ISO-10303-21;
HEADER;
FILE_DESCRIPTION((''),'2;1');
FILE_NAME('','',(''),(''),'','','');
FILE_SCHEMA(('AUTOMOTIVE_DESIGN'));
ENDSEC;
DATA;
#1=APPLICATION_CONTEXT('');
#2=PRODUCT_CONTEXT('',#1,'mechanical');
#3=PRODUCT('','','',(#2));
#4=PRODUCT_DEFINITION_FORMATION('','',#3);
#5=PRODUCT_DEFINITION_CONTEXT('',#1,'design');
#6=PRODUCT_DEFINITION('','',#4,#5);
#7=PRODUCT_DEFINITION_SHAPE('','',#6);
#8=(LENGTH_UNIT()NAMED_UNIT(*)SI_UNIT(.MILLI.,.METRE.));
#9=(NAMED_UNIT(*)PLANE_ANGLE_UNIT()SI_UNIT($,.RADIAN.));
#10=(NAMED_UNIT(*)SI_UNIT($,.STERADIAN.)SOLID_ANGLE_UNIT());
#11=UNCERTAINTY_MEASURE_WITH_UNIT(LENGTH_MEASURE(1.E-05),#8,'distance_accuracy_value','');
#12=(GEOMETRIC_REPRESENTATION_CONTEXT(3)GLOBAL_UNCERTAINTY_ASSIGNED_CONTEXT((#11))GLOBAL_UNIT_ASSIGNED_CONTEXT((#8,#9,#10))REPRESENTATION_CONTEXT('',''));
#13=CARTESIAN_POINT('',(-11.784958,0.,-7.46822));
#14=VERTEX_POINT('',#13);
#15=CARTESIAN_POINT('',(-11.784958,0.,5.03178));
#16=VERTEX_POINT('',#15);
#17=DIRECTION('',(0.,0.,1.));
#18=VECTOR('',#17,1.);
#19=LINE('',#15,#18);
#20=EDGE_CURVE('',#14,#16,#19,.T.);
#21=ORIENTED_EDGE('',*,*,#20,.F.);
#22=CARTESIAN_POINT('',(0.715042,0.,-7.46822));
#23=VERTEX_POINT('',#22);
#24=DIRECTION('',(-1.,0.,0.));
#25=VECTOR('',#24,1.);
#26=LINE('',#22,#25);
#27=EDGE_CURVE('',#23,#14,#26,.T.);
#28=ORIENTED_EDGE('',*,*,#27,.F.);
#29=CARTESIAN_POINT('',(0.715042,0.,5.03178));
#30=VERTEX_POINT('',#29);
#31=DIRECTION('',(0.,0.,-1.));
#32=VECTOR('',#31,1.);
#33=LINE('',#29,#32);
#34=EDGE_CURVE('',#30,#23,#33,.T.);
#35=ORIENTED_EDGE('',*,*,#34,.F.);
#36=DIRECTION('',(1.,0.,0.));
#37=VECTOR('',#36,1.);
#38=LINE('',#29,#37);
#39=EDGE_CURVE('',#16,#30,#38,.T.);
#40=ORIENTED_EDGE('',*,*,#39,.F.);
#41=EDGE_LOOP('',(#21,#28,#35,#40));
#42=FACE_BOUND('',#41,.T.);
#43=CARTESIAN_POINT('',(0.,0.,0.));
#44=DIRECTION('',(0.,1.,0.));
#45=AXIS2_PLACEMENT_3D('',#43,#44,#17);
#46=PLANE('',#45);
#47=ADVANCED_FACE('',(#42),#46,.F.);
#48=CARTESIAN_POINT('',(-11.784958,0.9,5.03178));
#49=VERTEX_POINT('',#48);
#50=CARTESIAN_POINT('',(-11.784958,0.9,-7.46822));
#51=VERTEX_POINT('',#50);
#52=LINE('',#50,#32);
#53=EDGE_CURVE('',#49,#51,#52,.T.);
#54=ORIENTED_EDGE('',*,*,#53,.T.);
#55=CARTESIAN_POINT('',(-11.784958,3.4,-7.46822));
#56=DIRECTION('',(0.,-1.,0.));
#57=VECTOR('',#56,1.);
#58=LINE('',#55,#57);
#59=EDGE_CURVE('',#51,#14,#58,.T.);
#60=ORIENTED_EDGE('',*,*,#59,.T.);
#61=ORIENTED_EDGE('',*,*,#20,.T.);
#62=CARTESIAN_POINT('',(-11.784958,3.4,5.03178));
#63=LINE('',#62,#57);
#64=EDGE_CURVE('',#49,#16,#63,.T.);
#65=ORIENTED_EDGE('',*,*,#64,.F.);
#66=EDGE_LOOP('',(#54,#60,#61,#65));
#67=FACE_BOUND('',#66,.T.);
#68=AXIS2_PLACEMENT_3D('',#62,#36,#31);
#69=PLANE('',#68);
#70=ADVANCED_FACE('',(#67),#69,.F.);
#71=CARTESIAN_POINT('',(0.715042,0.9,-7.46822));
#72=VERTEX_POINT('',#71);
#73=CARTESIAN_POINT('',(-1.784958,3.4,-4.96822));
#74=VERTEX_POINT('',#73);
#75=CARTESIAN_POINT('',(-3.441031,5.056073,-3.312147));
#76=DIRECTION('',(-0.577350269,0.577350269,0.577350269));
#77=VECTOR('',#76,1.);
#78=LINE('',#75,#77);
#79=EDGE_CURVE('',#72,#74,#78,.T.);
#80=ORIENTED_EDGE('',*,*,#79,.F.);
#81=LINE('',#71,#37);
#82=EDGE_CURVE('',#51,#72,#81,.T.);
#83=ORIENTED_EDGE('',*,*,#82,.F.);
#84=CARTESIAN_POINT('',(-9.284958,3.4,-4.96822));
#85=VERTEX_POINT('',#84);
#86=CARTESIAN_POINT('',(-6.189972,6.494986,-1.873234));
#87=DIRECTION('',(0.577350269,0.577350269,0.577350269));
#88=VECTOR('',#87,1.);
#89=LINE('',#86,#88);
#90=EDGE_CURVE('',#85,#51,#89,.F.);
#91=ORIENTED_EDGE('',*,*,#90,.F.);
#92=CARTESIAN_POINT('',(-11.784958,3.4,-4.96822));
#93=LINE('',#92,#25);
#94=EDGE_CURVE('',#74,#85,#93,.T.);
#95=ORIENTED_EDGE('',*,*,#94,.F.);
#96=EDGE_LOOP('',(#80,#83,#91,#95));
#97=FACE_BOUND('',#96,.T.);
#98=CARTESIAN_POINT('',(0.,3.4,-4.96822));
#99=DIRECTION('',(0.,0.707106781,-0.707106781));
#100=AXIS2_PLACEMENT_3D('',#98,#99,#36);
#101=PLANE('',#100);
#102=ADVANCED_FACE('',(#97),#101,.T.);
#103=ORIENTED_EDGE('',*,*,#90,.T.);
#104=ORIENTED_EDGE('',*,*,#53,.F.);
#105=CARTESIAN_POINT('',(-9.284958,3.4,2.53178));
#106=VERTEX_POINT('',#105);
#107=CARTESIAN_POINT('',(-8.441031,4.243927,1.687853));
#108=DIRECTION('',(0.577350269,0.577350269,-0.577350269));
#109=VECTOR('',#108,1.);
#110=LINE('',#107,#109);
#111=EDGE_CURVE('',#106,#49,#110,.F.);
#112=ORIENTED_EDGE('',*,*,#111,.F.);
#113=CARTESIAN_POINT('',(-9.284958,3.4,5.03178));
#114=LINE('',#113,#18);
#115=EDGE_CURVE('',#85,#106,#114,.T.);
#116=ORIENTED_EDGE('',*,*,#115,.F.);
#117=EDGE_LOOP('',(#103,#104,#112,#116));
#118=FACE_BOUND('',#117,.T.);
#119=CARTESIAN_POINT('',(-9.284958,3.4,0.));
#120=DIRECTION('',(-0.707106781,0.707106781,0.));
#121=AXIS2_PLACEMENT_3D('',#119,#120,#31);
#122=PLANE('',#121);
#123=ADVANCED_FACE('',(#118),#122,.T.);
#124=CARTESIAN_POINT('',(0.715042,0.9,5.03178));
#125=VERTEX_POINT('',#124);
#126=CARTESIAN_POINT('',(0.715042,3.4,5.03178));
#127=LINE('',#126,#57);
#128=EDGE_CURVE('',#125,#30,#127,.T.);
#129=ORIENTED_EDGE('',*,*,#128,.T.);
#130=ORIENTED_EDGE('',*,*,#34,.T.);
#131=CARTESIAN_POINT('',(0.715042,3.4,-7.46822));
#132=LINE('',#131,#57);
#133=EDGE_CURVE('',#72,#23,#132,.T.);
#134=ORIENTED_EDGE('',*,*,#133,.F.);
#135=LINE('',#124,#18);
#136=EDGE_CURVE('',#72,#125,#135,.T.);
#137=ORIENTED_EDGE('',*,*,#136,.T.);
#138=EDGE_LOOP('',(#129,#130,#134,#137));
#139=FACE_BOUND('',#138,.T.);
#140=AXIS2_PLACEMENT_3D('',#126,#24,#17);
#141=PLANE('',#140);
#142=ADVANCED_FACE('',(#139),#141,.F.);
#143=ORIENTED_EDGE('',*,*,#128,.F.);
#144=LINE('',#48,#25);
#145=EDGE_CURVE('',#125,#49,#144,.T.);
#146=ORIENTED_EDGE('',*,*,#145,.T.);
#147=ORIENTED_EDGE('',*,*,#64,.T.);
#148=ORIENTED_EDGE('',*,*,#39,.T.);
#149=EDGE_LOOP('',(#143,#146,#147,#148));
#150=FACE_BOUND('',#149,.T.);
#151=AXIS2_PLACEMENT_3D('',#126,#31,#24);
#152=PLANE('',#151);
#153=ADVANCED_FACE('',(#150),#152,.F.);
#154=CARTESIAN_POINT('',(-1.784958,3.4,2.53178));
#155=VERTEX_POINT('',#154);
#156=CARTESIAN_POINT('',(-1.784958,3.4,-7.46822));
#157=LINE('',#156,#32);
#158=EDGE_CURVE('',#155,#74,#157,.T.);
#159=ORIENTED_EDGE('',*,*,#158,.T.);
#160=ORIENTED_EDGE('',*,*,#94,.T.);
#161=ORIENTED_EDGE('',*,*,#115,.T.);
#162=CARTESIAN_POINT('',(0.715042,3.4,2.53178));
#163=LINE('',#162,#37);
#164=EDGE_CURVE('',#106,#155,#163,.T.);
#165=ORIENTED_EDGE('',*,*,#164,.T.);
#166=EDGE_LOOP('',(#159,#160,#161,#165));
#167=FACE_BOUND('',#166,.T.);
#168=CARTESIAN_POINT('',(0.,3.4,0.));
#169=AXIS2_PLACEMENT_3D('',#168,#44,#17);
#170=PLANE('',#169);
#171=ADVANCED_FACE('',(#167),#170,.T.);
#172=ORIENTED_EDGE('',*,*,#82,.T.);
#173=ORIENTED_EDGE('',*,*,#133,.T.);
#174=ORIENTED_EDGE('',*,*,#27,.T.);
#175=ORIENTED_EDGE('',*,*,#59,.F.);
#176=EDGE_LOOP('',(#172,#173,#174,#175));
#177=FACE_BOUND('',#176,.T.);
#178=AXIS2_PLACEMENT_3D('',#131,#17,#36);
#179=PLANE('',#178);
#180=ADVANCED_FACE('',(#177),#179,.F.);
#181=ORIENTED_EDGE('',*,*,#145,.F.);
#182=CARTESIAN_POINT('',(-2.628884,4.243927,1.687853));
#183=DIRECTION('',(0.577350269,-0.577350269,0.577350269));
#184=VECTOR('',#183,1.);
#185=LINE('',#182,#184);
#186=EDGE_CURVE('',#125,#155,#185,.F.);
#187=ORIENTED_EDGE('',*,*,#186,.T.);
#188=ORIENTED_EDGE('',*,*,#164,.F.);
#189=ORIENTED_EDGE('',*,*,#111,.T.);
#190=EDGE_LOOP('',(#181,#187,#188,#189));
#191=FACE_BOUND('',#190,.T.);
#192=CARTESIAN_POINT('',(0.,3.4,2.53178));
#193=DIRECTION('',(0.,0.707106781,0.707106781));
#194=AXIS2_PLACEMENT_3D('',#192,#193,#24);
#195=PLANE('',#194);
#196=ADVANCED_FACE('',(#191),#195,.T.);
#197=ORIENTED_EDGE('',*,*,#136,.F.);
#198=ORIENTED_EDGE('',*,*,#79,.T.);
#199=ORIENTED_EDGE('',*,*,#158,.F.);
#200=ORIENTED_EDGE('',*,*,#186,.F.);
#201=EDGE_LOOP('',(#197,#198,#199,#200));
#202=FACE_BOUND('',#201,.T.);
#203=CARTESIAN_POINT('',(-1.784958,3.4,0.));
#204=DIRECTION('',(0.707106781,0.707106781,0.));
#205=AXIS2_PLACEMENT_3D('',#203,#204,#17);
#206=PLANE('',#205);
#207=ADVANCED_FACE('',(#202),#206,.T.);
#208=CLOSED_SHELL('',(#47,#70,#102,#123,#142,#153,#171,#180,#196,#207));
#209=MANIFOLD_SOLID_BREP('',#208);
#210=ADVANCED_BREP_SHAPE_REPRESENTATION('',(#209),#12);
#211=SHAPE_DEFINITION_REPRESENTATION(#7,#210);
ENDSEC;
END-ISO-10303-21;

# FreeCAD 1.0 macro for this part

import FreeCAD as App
import Part
import Sketcher


def edges_at(feature, points):
    """Names of the edges that pass closest to the given points."""
    edges = feature.Shape.Edges
    near = lambda p: min(range(len(edges)), key=lambda i: edges[i].distToShape(Part.Vertex(*p))[0])
    return sorted({f"Edge{near(p) + 1}" for p in points})

doc = App.newDocument("Part")
body = doc.addObject("PartDesign::Body", "Body")

# Sketch on XZ plane
sketch1 = body.newObject("Sketcher::SketchObject", "Sketch")
sketch1.AttachmentSupport = (doc.getObject("XZ_Plane"), [""])
sketch1.MapMode = "FlatFace"
sketch1.addGeometry([
    Part.LineSegment(App.Vector(-12, -7, 0), App.Vector(-12, 5, 0)),
    Part.LineSegment(App.Vector(-12, 5, 0), App.Vector(1, 5, 0)),
    Part.LineSegment(App.Vector(1, 5, 0), App.Vector(1, -7, 0)),
    Part.LineSegment(App.Vector(1, -7, 0), App.Vector(-12, -7, 0)),
], False)
sketch1.addConstraint([
    Sketcher.Constraint("Coincident", 0, 2, 1, 1),
    Sketcher.Constraint("Coincident", 1, 2, 2, 1),
    Sketcher.Constraint("Coincident", 2, 2, 3, 1),
    Sketcher.Constraint("Coincident", 3, 2, 0, 1),
    Sketcher.Constraint("Vertical", 0),
    Sketcher.Constraint("Horizontal", 1),
    Sketcher.Constraint("Vertical", 2),
    Sketcher.Constraint("Horizontal", 3),
    Sketcher.Constraint("Equal", 3, 0),
    Sketcher.Constraint("DistanceX", 1, 1, 1, 2, 12.5),
    Sketcher.Constraint("DistanceY", -1, 1, 0, 2, 5.03178),
    Sketcher.Constraint("DistanceX", 0, 2, -1, 1, 11.784958),
])
pad1 = body.newObject("PartDesign::Pad", "Pad")
pad1.Profile = sketch1
pad1.Length = 3.4
pad1.Reversed = True
doc.recompute()

chamfer = body.newObject("PartDesign::Chamfer", "Chamfer")
chamfer.Base = (pad1, edges_at(pad1, [
    (-11.785, 3.4, -1.218),
    (-5.535, 3.4, 5.032),
    (0.715, 3.4, -1.218),
    (-5.535, 3.4, -7.468),
]))
chamfer.Size = 2.5

doc.recompute()
